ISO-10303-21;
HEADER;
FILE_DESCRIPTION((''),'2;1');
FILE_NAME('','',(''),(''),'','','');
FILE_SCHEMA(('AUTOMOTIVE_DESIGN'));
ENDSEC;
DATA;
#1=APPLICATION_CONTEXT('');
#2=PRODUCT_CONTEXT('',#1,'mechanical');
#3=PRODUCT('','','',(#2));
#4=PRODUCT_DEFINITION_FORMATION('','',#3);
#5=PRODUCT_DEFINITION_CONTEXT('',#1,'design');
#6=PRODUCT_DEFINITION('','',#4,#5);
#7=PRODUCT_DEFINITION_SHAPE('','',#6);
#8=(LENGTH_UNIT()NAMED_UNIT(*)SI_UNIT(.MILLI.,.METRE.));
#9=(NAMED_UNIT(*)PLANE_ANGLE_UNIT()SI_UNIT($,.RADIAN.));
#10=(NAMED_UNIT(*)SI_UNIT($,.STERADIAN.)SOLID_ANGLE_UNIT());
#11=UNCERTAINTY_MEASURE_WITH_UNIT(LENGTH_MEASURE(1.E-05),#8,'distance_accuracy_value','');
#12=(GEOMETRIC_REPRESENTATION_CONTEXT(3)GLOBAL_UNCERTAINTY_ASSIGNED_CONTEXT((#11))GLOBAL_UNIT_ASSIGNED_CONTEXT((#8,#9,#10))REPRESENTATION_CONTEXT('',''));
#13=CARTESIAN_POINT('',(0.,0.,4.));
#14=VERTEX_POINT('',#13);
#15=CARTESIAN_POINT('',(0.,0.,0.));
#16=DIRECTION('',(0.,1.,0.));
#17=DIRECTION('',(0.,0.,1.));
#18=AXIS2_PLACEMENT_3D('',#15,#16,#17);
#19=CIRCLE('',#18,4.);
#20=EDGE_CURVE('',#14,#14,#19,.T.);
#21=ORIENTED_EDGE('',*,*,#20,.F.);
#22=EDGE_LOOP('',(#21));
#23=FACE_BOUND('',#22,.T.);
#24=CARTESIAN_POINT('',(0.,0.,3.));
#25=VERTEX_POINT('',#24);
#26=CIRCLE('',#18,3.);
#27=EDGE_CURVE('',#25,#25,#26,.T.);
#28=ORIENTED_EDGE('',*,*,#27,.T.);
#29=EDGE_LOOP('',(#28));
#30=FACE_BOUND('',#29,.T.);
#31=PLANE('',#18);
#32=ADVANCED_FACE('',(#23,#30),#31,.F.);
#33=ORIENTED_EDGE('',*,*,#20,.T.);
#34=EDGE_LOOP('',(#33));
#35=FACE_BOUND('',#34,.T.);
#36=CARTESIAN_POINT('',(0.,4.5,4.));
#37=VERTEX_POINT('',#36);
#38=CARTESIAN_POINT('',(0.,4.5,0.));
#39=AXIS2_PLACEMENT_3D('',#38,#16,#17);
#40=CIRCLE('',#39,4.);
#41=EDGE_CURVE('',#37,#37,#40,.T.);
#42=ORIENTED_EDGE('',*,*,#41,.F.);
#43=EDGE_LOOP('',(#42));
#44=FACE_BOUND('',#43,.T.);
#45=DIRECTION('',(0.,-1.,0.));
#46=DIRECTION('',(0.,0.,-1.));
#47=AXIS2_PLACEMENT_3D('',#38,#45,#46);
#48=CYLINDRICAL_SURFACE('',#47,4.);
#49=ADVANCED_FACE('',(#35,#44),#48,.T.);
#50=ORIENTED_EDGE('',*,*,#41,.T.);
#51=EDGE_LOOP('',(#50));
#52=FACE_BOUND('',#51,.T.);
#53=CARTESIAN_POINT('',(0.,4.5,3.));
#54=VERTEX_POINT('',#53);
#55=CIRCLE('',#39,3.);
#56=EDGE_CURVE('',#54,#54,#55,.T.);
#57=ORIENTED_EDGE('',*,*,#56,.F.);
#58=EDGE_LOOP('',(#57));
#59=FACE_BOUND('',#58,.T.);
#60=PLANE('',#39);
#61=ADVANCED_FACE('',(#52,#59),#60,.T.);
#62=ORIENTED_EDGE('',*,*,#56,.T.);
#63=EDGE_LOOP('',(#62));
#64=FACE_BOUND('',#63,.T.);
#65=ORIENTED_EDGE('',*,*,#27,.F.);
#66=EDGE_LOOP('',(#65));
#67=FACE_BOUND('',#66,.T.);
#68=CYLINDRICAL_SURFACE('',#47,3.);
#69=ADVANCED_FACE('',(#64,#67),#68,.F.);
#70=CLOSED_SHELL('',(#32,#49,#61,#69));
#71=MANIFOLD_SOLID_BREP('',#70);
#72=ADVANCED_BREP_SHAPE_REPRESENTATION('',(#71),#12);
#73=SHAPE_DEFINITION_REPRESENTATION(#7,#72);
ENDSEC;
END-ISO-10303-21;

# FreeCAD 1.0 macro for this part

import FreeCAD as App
import Part
import Sketcher

doc = App.newDocument("Part")
body = doc.addObject("PartDesign::Body", "Body")

sketch1 = body.newObject("Sketcher::SketchObject", "Sketch")
sketch1.AttachmentSupport = (doc.getObject("XZ_Plane"), [""])
sketch1.MapMode = "FlatFace"
sketch1.addGeometry([
    Part.Circle(App.Vector(0, 0, 0), App.Vector(0, 0, 1), 4),
    Part.Circle(App.Vector(0, 0, 0), App.Vector(0, 0, 1), 3),
], False)
sketch1.addConstraint([
    Sketcher.Constraint("Coincident", 0, 3, -1, 1),
    Sketcher.Constraint("Coincident", 1, 3, -1, 1),
    Sketcher.Constraint("Diameter", 0, 8.0),
    Sketcher.Constraint("Diameter", 1, 6.0),
])
pad1 = body.newObject("PartDesign::Pad", "Pad")
pad1.Profile = sketch1
pad1.Length = 4.5
pad1.Reversed = True

doc.recompute()
